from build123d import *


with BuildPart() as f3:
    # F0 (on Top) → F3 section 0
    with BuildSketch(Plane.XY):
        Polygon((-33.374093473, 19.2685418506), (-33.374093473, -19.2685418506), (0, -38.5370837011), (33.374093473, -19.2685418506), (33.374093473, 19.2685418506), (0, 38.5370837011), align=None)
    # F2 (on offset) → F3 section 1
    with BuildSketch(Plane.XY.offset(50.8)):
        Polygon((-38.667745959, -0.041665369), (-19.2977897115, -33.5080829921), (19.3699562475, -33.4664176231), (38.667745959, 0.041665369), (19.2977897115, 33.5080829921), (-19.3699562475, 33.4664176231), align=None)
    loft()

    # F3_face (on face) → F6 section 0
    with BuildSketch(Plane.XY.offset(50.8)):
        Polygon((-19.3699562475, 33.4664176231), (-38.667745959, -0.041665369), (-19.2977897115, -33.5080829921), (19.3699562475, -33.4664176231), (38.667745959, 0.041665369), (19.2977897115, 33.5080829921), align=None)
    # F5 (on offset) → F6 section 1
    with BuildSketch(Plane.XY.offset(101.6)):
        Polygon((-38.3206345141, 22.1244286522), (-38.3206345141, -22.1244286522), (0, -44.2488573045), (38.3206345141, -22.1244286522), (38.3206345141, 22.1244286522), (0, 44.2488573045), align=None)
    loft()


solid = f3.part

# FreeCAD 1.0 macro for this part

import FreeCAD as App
import Part
import Sketcher

V = App.Vector
Q = App.Units.Quantity


def add_polygon(sketch, points):
    """Adds a closed chain of lines whose ends are joined by coincident constraints."""
    first, n = sketch.GeometryCount, len(points)
    for a, b in zip(points, points[1:] + points[:1]):
        sketch.addGeometry(Part.LineSegment(App.Vector(*a, 0), App.Vector(*b, 0)), False)
    for i in range(n):
        sketch.addConstraint(Sketcher.Constraint("Coincident", first + i, 2, first + (i + 1) % n, 1))

doc = App.newDocument("Part")
body = doc.addObject("PartDesign::Body", "Body")

sketch1 = doc.addObject("Sketcher::SketchObject", "Sketch")
body.addObject(sketch1)
sketch1.AttachmentSupport = (doc.XY_Plane, [""])
sketch1.MapMode = "FlatFace"
add_polygon(sketch1, [(-33, 19), (-33, -19), (0, -39), (33, -19), (33, 19), (0, 39)])
sketch1.addConstraint([
    Sketcher.Constraint("Vertical", 0),
    Sketcher.Constraint("Vertical", 3),
    Sketcher.Constraint("Symmetric", 0, 2, 3, 2, -1, 1),
    Sketcher.Constraint("Symmetric", 1, 2, 4, 2, -1, 1),
    Sketcher.Constraint("PointOnObject", 1, 2, -2),
    Sketcher.Constraint("Parallel", 2, 5),
    Sketcher.Constraint("Horizontal", 0, 2, 2, 2),
    Sketcher.Constraint("Angle", 1, Q("-30 deg")),
    Sketcher.Constraint("DistanceY", 0, 2, 0, 1, Q("38.537084 mm")),
    Sketcher.Constraint("DistanceY", 1, 2, 0, 2, Q("19.268542 mm")),
])

sketch2 = doc.addObject("Sketcher::SketchObject", "Sketch001")
body.addObject(sketch2)
sketch2.AttachmentSupport = (doc.XY_Plane, [""])
sketch2.MapMode = "FlatFace"
sketch2.AttachmentOffset = App.Placement(V(0, 0, 50.8), App.Rotation())
add_polygon(sketch2, [(-39, 0), (-19, -34), (19, -33), (39, 0), (19, 34), (-19, 33)])
sketch2.addConstraint([
    Sketcher.Constraint("Symmetric", 0, 2, 3, 2, -1, 1),
    Sketcher.Constraint("Symmetric", 1, 2, 4, 2, -1, 1),
    Sketcher.Constraint("Symmetric", 2, 2, 5, 2, -1, 1),
    Sketcher.Constraint("Equal", 0, 1),
    Sketcher.Constraint("Equal", 1, 2),
    Sketcher.Constraint("DistanceY", 1, 2, 3, 2, Q("66.974501 mm")),
    Sketcher.Constraint("Distance", 0, Q("38.667768 mm")),
    Sketcher.Constraint("DistanceX", 0, 2, -1, 1, Q("19.29779 mm")),
    Sketcher.Constraint("DistanceY", 0, 2, 2, 2, Q("33.549748 mm")),
])

additiveloft = doc.addObject("PartDesign::AdditiveLoft", "AdditiveLoft")
body.addObject(additiveloft)
additiveloft.Profile = sketch1
additiveloft.Sections = [sketch2]

sketch3 = doc.addObject("Sketcher::SketchObject", "Sketch002")
body.addObject(sketch3)
sketch3.AttachmentSupport = (doc.XY_Plane, [""])
sketch3.MapMode = "FlatFace"
sketch3.AttachmentOffset = App.Placement(V(0, 0, 50.8), App.Rotation())
add_polygon(sketch3, [(-19, 33), (-39, 0), (-19, -34), (19, -33), (39, 0), (19, 34)])
sketch3.addConstraint([
    Sketcher.Constraint("Symmetric", 0, 2, 3, 2, -1, 1),
    Sketcher.Constraint("Symmetric", 1, 2, 4, 2, -1, 1),
    Sketcher.Constraint("Symmetric", 2, 2, 5, 2, -1, 1),
    Sketcher.Constraint("Equal", 0, 1),
    Sketcher.Constraint("Equal", 1, 2),
    Sketcher.Constraint("DistanceY", 2, 2, 4, 2, Q("66.974501 mm")),
    Sketcher.Constraint("Distance", 0, Q("38.667768 mm")),
    Sketcher.Constraint("DistanceX", 1, 2, -1, 1, Q("19.29779 mm")),
    Sketcher.Constraint("DistanceY", 1, 2, 3, 2, Q("33.549748 mm")),
])

sketch4 = doc.addObject("Sketcher::SketchObject", "Sketch003")
body.addObject(sketch4)
sketch4.AttachmentSupport = (doc.XY_Plane, [""])
sketch4.MapMode = "FlatFace"
sketch4.AttachmentOffset = App.Placement(V(0, 0, 101.6), App.Rotation())
add_polygon(sketch4, [(-38, 22), (-38, -22), (0, -44), (38, -22), (38, 22), (0, 44)])
sketch4.addConstraint([
    Sketcher.Constraint("Vertical", 0),
    Sketcher.Constraint("Vertical", 3),
    Sketcher.Constraint("Symmetric", 0, 2, 3, 2, -1, 1),
    Sketcher.Constraint("Symmetric", 1, 2, 4, 2, -1, 1),
    Sketcher.Constraint("PointOnObject", 1, 2, -2),
    Sketcher.Constraint("Parallel", 2, 5),
    Sketcher.Constraint("Horizontal", 0, 2, 2, 2),
    Sketcher.Constraint("Angle", 1, Q("-30 deg")),
    Sketcher.Constraint("DistanceY", 0, 2, 0, 1, Q("44.248857 mm")),
    Sketcher.Constraint("DistanceY", 1, 2, 0, 2, Q("22.124429 mm")),
])

additiveloft2 = doc.addObject("PartDesign::AdditiveLoft", "AdditiveLoft001")
body.addObject(additiveloft2)
additiveloft2.Profile = sketch3
additiveloft2.Sections = [sketch4]

doc.recompute()
